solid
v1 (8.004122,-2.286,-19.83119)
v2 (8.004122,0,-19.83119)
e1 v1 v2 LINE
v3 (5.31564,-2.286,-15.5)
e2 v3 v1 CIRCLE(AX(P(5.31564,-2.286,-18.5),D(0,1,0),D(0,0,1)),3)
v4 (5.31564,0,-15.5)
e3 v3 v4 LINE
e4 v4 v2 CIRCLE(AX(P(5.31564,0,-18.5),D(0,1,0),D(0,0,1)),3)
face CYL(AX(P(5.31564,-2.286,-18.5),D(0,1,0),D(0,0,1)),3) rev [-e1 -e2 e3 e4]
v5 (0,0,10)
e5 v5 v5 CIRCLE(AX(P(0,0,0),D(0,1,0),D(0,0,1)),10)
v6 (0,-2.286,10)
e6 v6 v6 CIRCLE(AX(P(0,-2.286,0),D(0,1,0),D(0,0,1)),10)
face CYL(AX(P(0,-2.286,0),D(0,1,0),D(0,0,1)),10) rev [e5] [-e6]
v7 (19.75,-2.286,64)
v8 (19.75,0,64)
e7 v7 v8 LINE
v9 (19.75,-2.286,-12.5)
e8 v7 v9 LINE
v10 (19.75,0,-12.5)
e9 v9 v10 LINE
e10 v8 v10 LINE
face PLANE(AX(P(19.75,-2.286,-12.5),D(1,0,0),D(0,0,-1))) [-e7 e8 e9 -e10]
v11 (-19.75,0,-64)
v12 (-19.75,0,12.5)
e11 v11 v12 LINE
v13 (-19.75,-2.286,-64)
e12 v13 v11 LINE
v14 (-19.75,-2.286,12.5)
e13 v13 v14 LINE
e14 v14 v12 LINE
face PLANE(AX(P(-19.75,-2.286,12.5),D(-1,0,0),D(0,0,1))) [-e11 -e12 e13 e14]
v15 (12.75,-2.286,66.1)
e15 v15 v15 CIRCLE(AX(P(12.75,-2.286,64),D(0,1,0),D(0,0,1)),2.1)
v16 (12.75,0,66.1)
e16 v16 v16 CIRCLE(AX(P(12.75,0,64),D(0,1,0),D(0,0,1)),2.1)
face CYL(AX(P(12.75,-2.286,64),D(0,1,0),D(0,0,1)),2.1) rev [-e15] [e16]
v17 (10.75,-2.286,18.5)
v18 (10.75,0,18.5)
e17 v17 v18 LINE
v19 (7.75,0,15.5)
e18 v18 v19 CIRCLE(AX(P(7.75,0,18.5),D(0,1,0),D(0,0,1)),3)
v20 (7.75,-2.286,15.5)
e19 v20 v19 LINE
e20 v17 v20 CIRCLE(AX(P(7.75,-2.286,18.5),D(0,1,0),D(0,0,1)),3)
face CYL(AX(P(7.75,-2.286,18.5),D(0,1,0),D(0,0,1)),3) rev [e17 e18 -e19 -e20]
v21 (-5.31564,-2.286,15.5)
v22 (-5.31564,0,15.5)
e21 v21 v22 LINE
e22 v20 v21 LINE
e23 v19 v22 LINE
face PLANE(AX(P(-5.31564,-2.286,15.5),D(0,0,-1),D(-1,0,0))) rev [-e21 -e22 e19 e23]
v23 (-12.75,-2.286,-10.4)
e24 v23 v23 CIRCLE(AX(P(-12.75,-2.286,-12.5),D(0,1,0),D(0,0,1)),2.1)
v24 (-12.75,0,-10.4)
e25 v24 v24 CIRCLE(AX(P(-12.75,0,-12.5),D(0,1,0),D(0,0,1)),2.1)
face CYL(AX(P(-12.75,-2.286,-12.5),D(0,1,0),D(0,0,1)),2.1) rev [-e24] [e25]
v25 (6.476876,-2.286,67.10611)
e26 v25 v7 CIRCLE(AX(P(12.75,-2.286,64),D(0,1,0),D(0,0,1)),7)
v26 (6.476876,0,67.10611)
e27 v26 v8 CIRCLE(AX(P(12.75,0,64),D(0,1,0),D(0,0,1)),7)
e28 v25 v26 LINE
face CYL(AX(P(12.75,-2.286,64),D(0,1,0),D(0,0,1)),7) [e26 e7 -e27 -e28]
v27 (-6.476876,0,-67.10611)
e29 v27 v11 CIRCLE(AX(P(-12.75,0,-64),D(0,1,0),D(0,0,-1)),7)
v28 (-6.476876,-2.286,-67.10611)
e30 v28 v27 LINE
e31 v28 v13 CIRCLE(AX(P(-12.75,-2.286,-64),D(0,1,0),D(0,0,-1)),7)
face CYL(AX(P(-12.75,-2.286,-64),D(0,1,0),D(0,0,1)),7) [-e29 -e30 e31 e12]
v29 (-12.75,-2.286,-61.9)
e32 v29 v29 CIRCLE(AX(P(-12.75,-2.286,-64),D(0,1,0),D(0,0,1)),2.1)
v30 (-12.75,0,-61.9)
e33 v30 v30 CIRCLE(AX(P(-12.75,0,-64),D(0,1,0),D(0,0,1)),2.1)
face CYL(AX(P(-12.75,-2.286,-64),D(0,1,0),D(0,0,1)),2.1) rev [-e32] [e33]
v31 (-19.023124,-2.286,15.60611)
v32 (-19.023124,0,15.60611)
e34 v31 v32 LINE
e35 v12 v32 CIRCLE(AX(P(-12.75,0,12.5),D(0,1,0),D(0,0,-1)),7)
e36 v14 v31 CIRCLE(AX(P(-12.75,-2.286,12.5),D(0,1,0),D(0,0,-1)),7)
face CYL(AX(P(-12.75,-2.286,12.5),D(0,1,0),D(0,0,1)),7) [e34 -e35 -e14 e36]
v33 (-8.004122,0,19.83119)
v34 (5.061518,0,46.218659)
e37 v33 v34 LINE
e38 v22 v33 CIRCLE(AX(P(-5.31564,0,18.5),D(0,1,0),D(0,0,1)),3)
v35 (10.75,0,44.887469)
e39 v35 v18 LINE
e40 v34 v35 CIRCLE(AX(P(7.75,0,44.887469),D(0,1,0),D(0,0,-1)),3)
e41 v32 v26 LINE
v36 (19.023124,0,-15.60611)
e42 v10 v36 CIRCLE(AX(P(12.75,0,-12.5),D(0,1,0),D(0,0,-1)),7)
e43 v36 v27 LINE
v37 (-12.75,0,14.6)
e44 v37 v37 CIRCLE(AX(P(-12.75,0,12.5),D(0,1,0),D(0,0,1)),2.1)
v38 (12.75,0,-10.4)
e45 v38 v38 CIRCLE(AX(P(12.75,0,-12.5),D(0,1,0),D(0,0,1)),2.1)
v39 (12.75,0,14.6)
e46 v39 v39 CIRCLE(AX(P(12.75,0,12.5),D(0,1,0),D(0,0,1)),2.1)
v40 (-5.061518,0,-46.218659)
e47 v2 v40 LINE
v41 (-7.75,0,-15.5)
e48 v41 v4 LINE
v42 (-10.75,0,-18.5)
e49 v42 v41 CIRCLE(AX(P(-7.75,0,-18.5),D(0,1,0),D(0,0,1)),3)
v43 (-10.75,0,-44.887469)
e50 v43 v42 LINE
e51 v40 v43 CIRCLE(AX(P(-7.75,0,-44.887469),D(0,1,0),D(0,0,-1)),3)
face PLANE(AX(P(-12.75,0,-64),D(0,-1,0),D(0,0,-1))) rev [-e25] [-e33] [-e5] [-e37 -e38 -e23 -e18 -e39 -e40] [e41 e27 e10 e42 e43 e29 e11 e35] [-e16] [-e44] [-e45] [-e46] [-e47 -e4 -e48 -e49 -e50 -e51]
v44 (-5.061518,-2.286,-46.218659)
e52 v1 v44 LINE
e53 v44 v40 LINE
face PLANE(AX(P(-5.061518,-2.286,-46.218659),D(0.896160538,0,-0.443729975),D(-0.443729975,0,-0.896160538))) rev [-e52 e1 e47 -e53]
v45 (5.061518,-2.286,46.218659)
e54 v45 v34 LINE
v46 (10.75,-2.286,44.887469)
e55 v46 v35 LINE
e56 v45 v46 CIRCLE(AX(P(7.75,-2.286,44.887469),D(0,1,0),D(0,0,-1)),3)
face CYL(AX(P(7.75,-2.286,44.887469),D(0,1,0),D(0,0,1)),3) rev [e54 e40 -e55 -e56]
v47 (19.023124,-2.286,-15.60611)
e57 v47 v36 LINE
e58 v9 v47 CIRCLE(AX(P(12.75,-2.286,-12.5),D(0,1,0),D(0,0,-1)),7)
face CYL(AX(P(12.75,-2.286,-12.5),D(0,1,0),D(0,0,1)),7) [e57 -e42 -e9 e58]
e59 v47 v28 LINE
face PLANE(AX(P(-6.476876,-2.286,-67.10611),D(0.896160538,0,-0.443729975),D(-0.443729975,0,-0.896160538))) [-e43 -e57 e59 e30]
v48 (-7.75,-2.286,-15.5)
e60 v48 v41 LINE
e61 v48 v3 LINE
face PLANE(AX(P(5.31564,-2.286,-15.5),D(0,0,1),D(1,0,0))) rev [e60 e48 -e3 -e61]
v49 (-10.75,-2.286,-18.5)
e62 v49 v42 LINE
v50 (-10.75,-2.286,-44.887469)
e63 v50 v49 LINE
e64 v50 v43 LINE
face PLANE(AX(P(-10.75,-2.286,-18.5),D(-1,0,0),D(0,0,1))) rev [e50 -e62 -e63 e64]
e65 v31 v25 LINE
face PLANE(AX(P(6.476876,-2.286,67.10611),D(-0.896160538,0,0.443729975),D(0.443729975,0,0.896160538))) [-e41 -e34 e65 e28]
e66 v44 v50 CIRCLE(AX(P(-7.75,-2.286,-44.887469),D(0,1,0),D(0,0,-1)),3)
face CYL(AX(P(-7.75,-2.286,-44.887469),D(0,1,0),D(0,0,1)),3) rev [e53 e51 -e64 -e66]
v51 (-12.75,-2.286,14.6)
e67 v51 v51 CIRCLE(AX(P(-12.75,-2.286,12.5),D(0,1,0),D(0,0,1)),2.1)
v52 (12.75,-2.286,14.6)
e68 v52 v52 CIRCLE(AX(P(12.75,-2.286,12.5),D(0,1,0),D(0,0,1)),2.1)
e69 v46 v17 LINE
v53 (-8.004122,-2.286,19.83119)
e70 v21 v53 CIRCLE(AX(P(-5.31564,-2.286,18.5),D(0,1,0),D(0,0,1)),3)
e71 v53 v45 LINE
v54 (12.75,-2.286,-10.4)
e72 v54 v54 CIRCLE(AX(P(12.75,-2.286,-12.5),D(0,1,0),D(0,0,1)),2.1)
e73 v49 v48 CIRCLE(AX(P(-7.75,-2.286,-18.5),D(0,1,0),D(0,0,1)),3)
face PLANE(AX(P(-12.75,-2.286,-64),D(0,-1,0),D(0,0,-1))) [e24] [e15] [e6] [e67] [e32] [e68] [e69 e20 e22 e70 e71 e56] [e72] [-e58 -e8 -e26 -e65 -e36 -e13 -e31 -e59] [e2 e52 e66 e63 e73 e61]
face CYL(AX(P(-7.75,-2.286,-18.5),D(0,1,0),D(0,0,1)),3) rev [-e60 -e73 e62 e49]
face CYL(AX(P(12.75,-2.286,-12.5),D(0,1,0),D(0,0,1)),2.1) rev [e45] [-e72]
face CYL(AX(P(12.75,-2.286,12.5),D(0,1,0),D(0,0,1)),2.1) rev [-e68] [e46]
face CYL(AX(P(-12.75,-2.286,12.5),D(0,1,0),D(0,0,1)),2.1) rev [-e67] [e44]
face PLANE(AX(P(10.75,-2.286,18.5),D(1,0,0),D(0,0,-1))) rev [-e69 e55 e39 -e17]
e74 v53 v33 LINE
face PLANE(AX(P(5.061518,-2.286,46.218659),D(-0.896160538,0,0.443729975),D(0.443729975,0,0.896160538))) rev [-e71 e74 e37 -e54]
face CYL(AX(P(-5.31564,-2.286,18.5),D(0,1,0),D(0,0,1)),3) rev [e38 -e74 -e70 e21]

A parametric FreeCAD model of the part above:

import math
import FreeCAD as App
import Part
import Sketcher

V = App.Vector

doc = App.newDocument("Part")
body = doc.addObject("PartDesign::Body", "Body")

sketch1 = body.newObject("Sketcher::SketchObject", "Sketch")
sketch1.AttachmentSupport = (doc.getObject("XZ_Plane"), [""])
sketch1.MapMode = "FlatFace"
sketch1.addGeometry([
    Part.LineSegment(V(-19, 15.6, 0), V(6.5, 67.1, 0)),
    Part.ArcOfCircle(Part.Circle(V(12.8, 64, 0), V(0, 0, 1), 7), math.radians(0), math.radians(154)),
    Part.LineSegment(V(19.8, 64, 0), V(19.8, -12.5, 0)),
    Part.ArcOfCircle(Part.Circle(V(12.7, -12.5, 0), V(0, 0, 1), 7), math.radians(-26), math.radians(0)),
    Part.LineSegment(V(19, -15.6, 0), V(-6.5, -67.1, 0)),
    Part.ArcOfCircle(Part.Circle(V(-12.8, -64, 0), V(0, 0, 1), 7), math.radians(180), math.radians(334)),
    Part.LineSegment(V(-19.8, -64, 0), V(-19.8, 12.5, 0)),
    Part.ArcOfCircle(Part.Circle(V(-12.7, 12.5, 0), V(0, 0, 1), 7), math.radians(154), math.radians(180)),
    Part.Circle(V(12.8, 64, 0), V(0, 0, 1), 2.1),
    Part.Circle(V(12.8, 12.5, 0), V(0, 0, 1), 2.1),
    Part.LineSegment(V(5.1, 46.2, 0), V(-8, 19.8, 0)),
    Part.ArcOfCircle(Part.Circle(V(-5.3, 18.5, 0), V(0, 0, 1), 3), math.radians(154), math.radians(270)),
    Part.LineSegment(V(-5.3, 15.5, 0), V(7.8, 15.5, 0)),
    Part.ArcOfCircle(Part.Circle(V(7.8, 18.5, 0), V(0, 0, 1), 3), math.radians(-90), math.radians(0)),
    Part.LineSegment(V(10.8, 18.5, 0), V(10.8, 44.9, 0)),
    Part.ArcOfCircle(Part.Circle(V(7.8, 44.9, 0), V(0, 0, 1), 3), math.radians(0), math.radians(154)),
    Part.Circle(V(-12.8, 12.5, 0), V(0, 0, 1), 2.1),
    Part.Circle(V(12.8, -12.5, 0), V(0, 0, 1), 2.1),
    Part.Circle(V(0, 0, 0), V(0, 0, 1), 10),
    Part.LineSegment(V(-5.1, -46.2, 0), V(8, -19.8, 0)),
    Part.ArcOfCircle(Part.Circle(V(5.3, -18.5, 0), V(0, 0, 1), 3), math.radians(-26), math.radians(90)),
    Part.LineSegment(V(5.3, -15.5, 0), V(-7.8, -15.5, 0)),
    Part.ArcOfCircle(Part.Circle(V(-7.8, -18.5, 0), V(0, 0, 1), 3), math.radians(90), math.radians(180)),
    Part.LineSegment(V(-10.8, -18.5, 0), V(-10.8, -44.9, 0)),
    Part.ArcOfCircle(Part.Circle(V(-7.8, -44.9, 0), V(0, 0, 1), 3), math.radians(-180), math.radians(-26)),
    Part.Circle(V(-12.8, -12.5, 0), V(0, 0, 1), 2.1),
    Part.Circle(V(-12.8, -64, 0), V(0, 0, 1), 2.1),
], False)
sketch1.addConstraint([
    Sketcher.Constraint("Tangent", 0, 2, 1, 2),
    Sketcher.Constraint("Tangent", 1, 1, 2, 1),
    Sketcher.Constraint("Tangent", 2, 2, 3, 2),
    Sketcher.Constraint("Tangent", 3, 1, 4, 1),
    Sketcher.Constraint("Tangent", 4, 2, 5, 2),
    Sketcher.Constraint("Tangent", 5, 1, 6, 1),
    Sketcher.Constraint("Tangent", 6, 2, 7, 2),
    Sketcher.Constraint("Tangent", 7, 1, 0, 1),
    Sketcher.Constraint("Tangent", 10, 2, 11, 1),
    Sketcher.Constraint("Tangent", 11, 2, 12, 1),
    Sketcher.Constraint("Tangent", 12, 2, 13, 1),
    Sketcher.Constraint("Tangent", 13, 2, 14, 1),
    Sketcher.Constraint("Tangent", 14, 2, 15, 1),
    Sketcher.Constraint("Tangent", 15, 2, 10, 1),
    Sketcher.Constraint("Tangent", 19, 2, 20, 1),
    Sketcher.Constraint("Tangent", 20, 2, 21, 1),
    Sketcher.Constraint("Tangent", 21, 2, 22, 1),
    Sketcher.Constraint("Tangent", 22, 2, 23, 1),
    Sketcher.Constraint("Tangent", 23, 2, 24, 1),
    Sketcher.Constraint("Tangent", 24, 2, 19, 1),
    Sketcher.Constraint("Vertical", 2),
    Sketcher.Constraint("Vertical", 6),
    Sketcher.Constraint("Horizontal", 12),
    Sketcher.Constraint("Vertical", 14),
    Sketcher.Constraint("Horizontal", 21),
    Sketcher.Constraint("Vertical", 23),
    Sketcher.Constraint("Coincident", 18, 3, -1, 1),
    Sketcher.Constraint("Coincident", 8, 3, 1, 3),
    Sketcher.Constraint("Coincident", 16, 3, 7, 3),
    Sketcher.Constraint("Coincident", 17, 3, 3, 3),
    Sketcher.Constraint("Coincident", 26, 3, 5, 3),
    Sketcher.Constraint("Equal", 1, 3),
    Sketcher.Constraint("Equal", 3, 5),
    Sketcher.Constraint("Equal", 5, 7),
    Sketcher.Constraint("Equal", 8, 9),
    Sketcher.Constraint("Equal", 11, 13),
    Sketcher.Constraint("Equal", 13, 15),
    Sketcher.Constraint("Equal", 9, 16),
    Sketcher.Constraint("Equal", 16, 17),
    Sketcher.Constraint("Equal", 15, 20),
    Sketcher.Constraint("Equal", 20, 22),
    Sketcher.Constraint("Equal", 22, 24),
    Sketcher.Constraint("Equal", 17, 25),
    Sketcher.Constraint("Equal", 25, 26),
    Sketcher.Constraint("Symmetric", 1, 3, 5, 3, -1, 1),
    Sketcher.Constraint("Symmetric", 11, 3, 20, 3, -1, 1),
    Sketcher.Constraint("Symmetric", 15, 3, 24, 3, -1, 1),
    Sketcher.Constraint("Symmetric", 9, 3, 25, 3, -1, 1),
    Sketcher.Constraint("Symmetric", 7, 3, 9, 3, -2),
    Sketcher.Constraint("Parallel", 0, 4),
    Sketcher.Constraint("Parallel", 4, 10),
    Sketcher.Constraint("Diameter", 18, 20.0),
    Sketcher.Constraint("Radius", 1, 7.0),
    Sketcher.Constraint("Radius", 11, 3.0),
    Sketcher.Constraint("Diameter", 8, 4.2),
    Sketcher.Constraint("DistanceY", 2, 2, 2, 1, 76.5),
    Sketcher.Constraint("DistanceY", -1, 1, 1, 3, 64.0),
    Sketcher.Constraint("DistanceY", 7, 3, 11, 3, 6.0),
    Sketcher.Constraint("DistanceX", 13, 3, 9, 3, 5.0),
    Sketcher.Constraint("DistanceX", 5, 3, 3, 3, 25.5),
    Sketcher.Constraint("DistanceX", 7, 1, 10, 2, 11.019002),
])
pad1 = body.newObject("PartDesign::Pad", "Pad")
pad1.Profile = sketch1
pad1.Length = 2.286

doc.recompute()
